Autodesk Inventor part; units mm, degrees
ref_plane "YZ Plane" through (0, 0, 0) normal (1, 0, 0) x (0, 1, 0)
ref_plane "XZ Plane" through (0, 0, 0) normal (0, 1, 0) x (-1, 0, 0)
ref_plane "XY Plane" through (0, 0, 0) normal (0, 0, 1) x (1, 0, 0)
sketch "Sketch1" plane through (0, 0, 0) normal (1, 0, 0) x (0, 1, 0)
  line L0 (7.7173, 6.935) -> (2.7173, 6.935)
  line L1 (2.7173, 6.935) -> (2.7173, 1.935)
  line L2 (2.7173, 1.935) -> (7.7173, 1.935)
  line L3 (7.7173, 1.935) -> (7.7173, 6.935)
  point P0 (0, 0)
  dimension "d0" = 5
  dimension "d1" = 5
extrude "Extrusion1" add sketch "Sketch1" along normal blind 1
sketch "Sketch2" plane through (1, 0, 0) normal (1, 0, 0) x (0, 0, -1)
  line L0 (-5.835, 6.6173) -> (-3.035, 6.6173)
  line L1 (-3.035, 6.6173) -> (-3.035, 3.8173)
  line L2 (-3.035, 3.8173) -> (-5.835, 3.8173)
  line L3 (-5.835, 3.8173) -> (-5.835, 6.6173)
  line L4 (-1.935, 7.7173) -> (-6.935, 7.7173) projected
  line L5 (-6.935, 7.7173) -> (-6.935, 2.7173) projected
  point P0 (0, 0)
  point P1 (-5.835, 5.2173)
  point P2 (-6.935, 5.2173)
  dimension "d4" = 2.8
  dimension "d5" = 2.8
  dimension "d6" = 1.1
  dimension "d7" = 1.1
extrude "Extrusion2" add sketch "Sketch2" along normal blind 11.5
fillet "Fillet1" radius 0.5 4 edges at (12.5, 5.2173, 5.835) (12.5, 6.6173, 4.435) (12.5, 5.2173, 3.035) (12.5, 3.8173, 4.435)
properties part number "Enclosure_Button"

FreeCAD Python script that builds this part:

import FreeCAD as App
import Part
import Sketcher
from FreeCAD import Vector


def edges_at(feature, points):
    """Names of the edges that pass closest to the given points."""
    edges = feature.Shape.Edges
    near = lambda p: min(range(len(edges)), key=lambda i: edges[i].distToShape(Part.Vertex(*p))[0])
    return sorted({f"Edge{near(p) + 1}" for p in points})


def add_polygon(sketch, points):
    """Adds a closed chain of lines whose ends are joined by coincident constraints."""
    first, n = sketch.GeometryCount, len(points)
    for a, b in zip(points, points[1:] + points[:1]):
        sketch.addGeometry(Part.LineSegment(App.Vector(*a, 0), App.Vector(*b, 0)), False)
    for i in range(n):
        sketch.addConstraint(Sketcher.Constraint("Coincident", first + i, 2, first + (i + 1) % n, 1))

doc = App.newDocument("Part")
body = doc.addObject("PartDesign::Body", "Body")

# Sketch on YZ plane
sketch1 = doc.addObject("Sketcher::SketchObject", "Sketch")
body.addObject(sketch1)
sketch1.AttachmentSupport = (doc.YZ_Plane, [""])
sketch1.MapMode = "FlatFace"
add_polygon(sketch1, [(7.7173, 1.935), (7.7173, 6.935), (2.7173, 6.935), (2.7173, 1.935)])  # lines 0-3
sketch1.addConstraint(Sketcher.Constraint("Vertical", 0))
sketch1.addConstraint(Sketcher.Constraint("Horizontal", 1))
sketch1.addConstraint(Sketcher.Constraint("Vertical", 2))
sketch1.addConstraint(Sketcher.Constraint("Horizontal", 3))
sketch1.addConstraint(Sketcher.Constraint("Equal", 3, 0))
sketch1.addConstraint(Sketcher.Constraint("DistanceX", 1, 2, 1, 1, 5.0))
sketch1.addConstraint(Sketcher.Constraint("DistanceY", -1, 1, 0, 2, 6.935))
sketch1.addConstraint(Sketcher.Constraint("DistanceX", -1, 1, 0, 2, 7.7173))
pad1 = doc.addObject("PartDesign::Pad", "Pad")
body.addObject(pad1)
pad1.Profile = sketch1
pad1.Length = 1

# Sketch on YZ plane
sketch2 = doc.addObject("Sketcher::SketchObject", "Sketch001")
body.addObject(sketch2)
sketch2.AttachmentSupport = (doc.YZ_Plane, [""])
sketch2.MapMode = "FlatFace"
sketch2.AttachmentOffset = App.Placement(Vector(0, 0, 1), App.Rotation())
add_polygon(sketch2, [(6.6173, 3.035), (6.6173, 5.835), (3.8173, 5.835), (3.8173, 3.035)])  # lines 0-3
sketch2.addConstraint(Sketcher.Constraint("Vertical", 0))
sketch2.addConstraint(Sketcher.Constraint("Horizontal", 1))
sketch2.addConstraint(Sketcher.Constraint("Vertical", 2))
sketch2.addConstraint(Sketcher.Constraint("Horizontal", 3))
sketch2.addConstraint(Sketcher.Constraint("Equal", 3, 0))
sketch2.addConstraint(Sketcher.Constraint("DistanceX", 1, 2, 1, 1, 2.8))
sketch2.addConstraint(Sketcher.Constraint("DistanceY", -1, 1, 0, 2, 5.835))
sketch2.addConstraint(Sketcher.Constraint("DistanceX", -1, 1, 0, 2, 6.6173))
pad2 = doc.addObject("PartDesign::Pad", "Pad001")
body.addObject(pad2)
pad2.Profile = sketch2
pad2.Length = 11.5
doc.recompute()

fillet = doc.addObject("PartDesign::Fillet", "Fillet")
body.addObject(fillet)
fillet.Base = (pad2, edges_at(pad2, [
    (12.5, 5.217, 5.835),
    (12.5, 6.617, 4.435),
    (12.5, 5.217, 3.035),
    (12.5, 3.817, 4.435),
]))
fillet.Radius = 0.5

doc.recompute()
